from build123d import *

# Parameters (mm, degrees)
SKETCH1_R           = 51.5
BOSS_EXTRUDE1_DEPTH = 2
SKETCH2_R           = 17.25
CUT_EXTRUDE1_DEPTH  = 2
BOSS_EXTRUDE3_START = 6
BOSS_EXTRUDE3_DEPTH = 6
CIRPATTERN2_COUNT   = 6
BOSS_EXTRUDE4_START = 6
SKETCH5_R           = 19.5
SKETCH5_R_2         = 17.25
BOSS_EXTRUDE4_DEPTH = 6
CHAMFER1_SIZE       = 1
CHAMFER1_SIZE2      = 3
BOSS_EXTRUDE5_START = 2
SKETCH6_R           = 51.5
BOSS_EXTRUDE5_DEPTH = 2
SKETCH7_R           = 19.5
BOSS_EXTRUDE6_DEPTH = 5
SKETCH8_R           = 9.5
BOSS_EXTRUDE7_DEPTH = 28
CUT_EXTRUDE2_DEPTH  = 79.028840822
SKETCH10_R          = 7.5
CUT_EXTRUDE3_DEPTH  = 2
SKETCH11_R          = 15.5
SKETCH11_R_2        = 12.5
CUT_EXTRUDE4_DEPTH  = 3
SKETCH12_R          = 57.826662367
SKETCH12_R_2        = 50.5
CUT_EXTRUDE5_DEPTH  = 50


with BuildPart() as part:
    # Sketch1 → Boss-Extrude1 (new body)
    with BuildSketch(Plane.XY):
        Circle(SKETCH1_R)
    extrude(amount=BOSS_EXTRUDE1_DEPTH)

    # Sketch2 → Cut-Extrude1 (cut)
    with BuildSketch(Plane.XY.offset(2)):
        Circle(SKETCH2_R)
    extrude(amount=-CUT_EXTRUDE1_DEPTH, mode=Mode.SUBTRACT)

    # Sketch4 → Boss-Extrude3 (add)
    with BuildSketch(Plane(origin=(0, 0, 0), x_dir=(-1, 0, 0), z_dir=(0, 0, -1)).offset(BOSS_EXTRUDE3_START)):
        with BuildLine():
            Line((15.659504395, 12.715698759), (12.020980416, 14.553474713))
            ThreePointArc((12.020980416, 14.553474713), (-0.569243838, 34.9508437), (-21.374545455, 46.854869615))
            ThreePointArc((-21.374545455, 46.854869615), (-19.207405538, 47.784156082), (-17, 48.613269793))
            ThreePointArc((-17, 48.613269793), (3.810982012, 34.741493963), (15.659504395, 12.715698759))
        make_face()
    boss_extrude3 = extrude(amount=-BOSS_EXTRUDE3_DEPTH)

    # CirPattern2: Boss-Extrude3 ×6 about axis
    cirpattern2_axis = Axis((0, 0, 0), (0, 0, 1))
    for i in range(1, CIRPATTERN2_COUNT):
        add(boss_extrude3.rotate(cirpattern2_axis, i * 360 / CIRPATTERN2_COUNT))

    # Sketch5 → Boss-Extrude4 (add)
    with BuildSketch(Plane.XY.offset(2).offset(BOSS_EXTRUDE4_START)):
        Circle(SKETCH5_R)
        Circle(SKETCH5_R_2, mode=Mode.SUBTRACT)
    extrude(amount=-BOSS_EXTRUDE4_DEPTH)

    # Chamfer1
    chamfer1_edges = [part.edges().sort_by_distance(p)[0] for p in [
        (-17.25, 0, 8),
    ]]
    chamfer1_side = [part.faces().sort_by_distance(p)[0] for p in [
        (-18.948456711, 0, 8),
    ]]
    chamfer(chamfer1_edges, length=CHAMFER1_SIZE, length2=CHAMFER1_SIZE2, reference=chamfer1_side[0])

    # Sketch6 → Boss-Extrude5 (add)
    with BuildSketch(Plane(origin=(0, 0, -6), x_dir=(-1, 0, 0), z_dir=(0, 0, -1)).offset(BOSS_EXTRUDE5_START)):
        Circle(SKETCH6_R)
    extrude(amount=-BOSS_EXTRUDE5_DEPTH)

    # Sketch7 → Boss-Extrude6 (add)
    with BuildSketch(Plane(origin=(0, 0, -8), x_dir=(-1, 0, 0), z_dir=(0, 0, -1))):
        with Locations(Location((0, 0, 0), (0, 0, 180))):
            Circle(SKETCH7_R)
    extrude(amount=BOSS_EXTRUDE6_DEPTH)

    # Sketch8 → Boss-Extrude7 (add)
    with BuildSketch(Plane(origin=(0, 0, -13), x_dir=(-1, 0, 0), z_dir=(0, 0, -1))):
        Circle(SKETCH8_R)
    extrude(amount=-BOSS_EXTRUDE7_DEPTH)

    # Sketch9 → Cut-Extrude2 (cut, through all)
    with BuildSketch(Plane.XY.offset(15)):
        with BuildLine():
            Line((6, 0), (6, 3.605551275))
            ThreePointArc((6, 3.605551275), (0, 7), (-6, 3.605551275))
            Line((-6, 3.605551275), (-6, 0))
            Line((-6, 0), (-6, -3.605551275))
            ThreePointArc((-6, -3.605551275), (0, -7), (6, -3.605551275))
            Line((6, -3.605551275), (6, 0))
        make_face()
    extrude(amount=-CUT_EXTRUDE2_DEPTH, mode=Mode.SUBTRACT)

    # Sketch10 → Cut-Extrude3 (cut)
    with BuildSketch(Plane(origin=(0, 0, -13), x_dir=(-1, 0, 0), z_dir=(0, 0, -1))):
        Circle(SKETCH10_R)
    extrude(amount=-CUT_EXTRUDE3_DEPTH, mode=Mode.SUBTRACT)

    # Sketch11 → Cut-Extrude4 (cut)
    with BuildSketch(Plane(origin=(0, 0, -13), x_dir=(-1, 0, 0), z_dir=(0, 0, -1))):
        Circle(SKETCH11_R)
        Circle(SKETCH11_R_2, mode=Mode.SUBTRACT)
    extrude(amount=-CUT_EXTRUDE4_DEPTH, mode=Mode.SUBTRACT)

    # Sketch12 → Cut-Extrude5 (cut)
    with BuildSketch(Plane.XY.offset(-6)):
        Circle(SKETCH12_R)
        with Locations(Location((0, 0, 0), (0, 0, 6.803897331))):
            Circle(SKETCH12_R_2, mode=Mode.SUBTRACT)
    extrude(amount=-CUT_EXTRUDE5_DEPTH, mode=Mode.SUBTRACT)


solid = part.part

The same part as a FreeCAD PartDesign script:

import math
import FreeCAD as App
import Part
import Sketcher
Q = App.Units.Quantity


def edges_at(feature, points):
    """Names of the edges that pass closest to the given points."""
    edges = feature.Shape.Edges
    near = lambda p: min(range(len(edges)), key=lambda i: edges[i].distToShape(Part.Vertex(*p))[0])
    return sorted({f"Edge{near(p) + 1}" for p in points})

doc = App.newDocument("Part")
body = doc.addObject("PartDesign::Body", "Body")

# Sketch on XY plane
sketch1 = body.newObject("Sketcher::SketchObject", "Sketch")
sketch1.AttachmentSupport = (doc.getObject("XY_Plane"), [""])
sketch1.MapMode = "FlatFace"
sketch1.addGeometry(Part.Circle(App.Vector(0, 0, 0), App.Vector(0, 0, 1), 52), False)
sketch1.addConstraint([
    Sketcher.Constraint("Coincident", 0, 3, -1, 1),
    Sketcher.Constraint("Diameter", 0, Q("103 mm")),
])
pad1 = body.newObject("PartDesign::Pad", "Pad")
pad1.Profile = sketch1
pad1.Length = 2

# Sketch on XY plane
sketch2 = body.newObject("Sketcher::SketchObject", "Sketch001")
sketch2.AttachmentSupport = (doc.getObject("XY_Plane"), [""])
sketch2.MapMode = "FlatFace"
sketch2.AttachmentOffset = App.Placement(App.Vector(0, 0, 2), App.Rotation())
sketch2.addGeometry(Part.Circle(App.Vector(0, 0, 0), App.Vector(0, 0, 1), 17), False)
sketch2.addConstraint([
    Sketcher.Constraint("Coincident", 0, 3, -1, 1),
    Sketcher.Constraint("Diameter", 0, Q("34.5 mm")),
])
pocket1 = body.newObject("PartDesign::Pocket", "Pocket")
pocket1.Profile = sketch2
pocket1.Length = 2

# Sketch on XY plane
sketch3 = body.newObject("Sketcher::SketchObject", "Sketch002")
sketch3.AttachmentSupport = (doc.getObject("XY_Plane"), [""])
sketch3.MapMode = "FlatFace"
sketch3.AttachmentOffset = App.Placement(App.Vector(0, 0, -6), App.Rotation())
sketch3.addGeometry([
    Part.LineSegment(App.Vector(-12, 14.6, 0), App.Vector(-15.7, 12.7, 0)),
    Part.ArcOfCircle(Part.Circle(App.Vector(34.4, 0, 0), App.Vector(0, 0, 1), 51.6), math.radians(110), math.radians(166)),
    Part.ArcOfCircle(Part.Circle(App.Vector(0, 0, 0), App.Vector(0, 0, 1), 51.5), math.radians(65.48), math.radians(70.73)),
    Part.ArcOfCircle(Part.Circle(App.Vector(34.4, 0, 0), App.Vector(0, 0, 1), 48.6), math.radians(106), math.radians(163)),
], False)
sketch3.addConstraint([
    Sketcher.Constraint("Coincident", 0, 2, 1, 2),
    Sketcher.Constraint("Coincident", 1, 1, 2, 2),
    Sketcher.Constraint("Coincident", 2, 1, 3, 1),
    Sketcher.Constraint("Coincident", 3, 2, 0, 1),
    Sketcher.Constraint("Coincident", 2, 3, -1, 1),
    Sketcher.Constraint("Coincident", 3, 3, 1, 3),
    Sketcher.Constraint("PointOnObject", 1, 3, -1),
    Sketcher.Constraint("Radius", 2, Q("51.5 mm")),
    Sketcher.Constraint("DistanceX", -1, 1, 1, 1, Q("17 mm")),
    Sketcher.Constraint("Radius", 1, Q("51.625 mm")),
    Sketcher.Constraint("Radius", 3, Q("48.625 mm")),
    Sketcher.Constraint("DistanceY", -1, 1, 0, 2, Q("12.715699 mm")),
    Sketcher.Constraint("DistanceX", 3, 2, -1, 1, Q("12.02098 mm")),
])
pad2 = body.newObject("PartDesign::Pad", "Pad001")
pad2.Profile = sketch3
pad2.Length = 6
doc.recompute()

polarpattern = body.newObject("PartDesign::PolarPattern", "PolarPattern")
polarpattern.Originals = [pad2]
polarpattern.Axis = (doc.getObject("Z_Axis"), [""])
polarpattern.Angle = 360
polarpattern.Occurrences = 6
body.Tip = polarpattern

# Sketch on XY plane
sketch4 = body.newObject("Sketcher::SketchObject", "Sketch003")
sketch4.AttachmentSupport = (doc.getObject("XY_Plane"), [""])
sketch4.MapMode = "FlatFace"
sketch4.AttachmentOffset = App.Placement(App.Vector(0, 0, 8), App.Rotation())
sketch4.addGeometry([
    Part.Circle(App.Vector(0, 0, 0), App.Vector(0, 0, 1), 20),
    Part.Circle(App.Vector(0, 0, 0), App.Vector(0, 0, 1), 17),
], False)
sketch4.addConstraint([
    Sketcher.Constraint("Coincident", 0, 3, -1, 1),
    Sketcher.Constraint("Coincident", 1, 3, -1, 1),
    Sketcher.Constraint("Diameter", 0, Q("39 mm")),
    Sketcher.Constraint("Diameter", 1, Q("34.5 mm")),
])
pad3 = body.newObject("PartDesign::Pad", "Pad002")
pad3.Profile = sketch4
pad3.Length = 6
pad3.Reversed = True
doc.recompute()

chamfer = body.newObject("PartDesign::Chamfer", "Chamfer")
chamfer.Base = (pad3, edges_at(pad3, [(-17.25, 0, 8)]))
chamfer.ChamferType = "Two distances"
chamfer.Size = 1
chamfer.Size2 = 3

# Sketch on XY plane
sketch5 = body.newObject("Sketcher::SketchObject", "Sketch004")
sketch5.AttachmentSupport = (doc.getObject("XY_Plane"), [""])
sketch5.MapMode = "FlatFace"
sketch5.AttachmentOffset = App.Placement(App.Vector(0, 0, -8), App.Rotation())
sketch5.addGeometry(Part.Circle(App.Vector(0, 0, 0), App.Vector(0, 0, 1), 52), False)
sketch5.addConstraint([
    Sketcher.Constraint("Coincident", 0, 3, -1, 1),
    Sketcher.Constraint("Diameter", 0, Q("103 mm")),
])
pad4 = body.newObject("PartDesign::Pad", "Pad003")
pad4.Profile = sketch5
pad4.Length = 2

# Sketch on XY plane
sketch6 = body.newObject("Sketcher::SketchObject", "Sketch005")
sketch6.AttachmentSupport = (doc.getObject("XY_Plane"), [""])
sketch6.MapMode = "FlatFace"
sketch6.AttachmentOffset = App.Placement(App.Vector(0, 0, -8), App.Rotation())
sketch6.addGeometry(Part.Circle(App.Vector(0, 0, 0), App.Vector(0, 0, 1), 20), False)
sketch6.addConstraint([
    Sketcher.Constraint("Coincident", 0, 3, -1, 1),
    Sketcher.Constraint("Diameter", 0, Q("39 mm")),
])
pad5 = body.newObject("PartDesign::Pad", "Pad004")
pad5.Profile = sketch6
pad5.Length = 5
pad5.Reversed = True

# Sketch on XY plane
sketch7 = body.newObject("Sketcher::SketchObject", "Sketch006")
sketch7.AttachmentSupport = (doc.getObject("XY_Plane"), [""])
sketch7.MapMode = "FlatFace"
sketch7.AttachmentOffset = App.Placement(App.Vector(0, 0, -13), App.Rotation())
sketch7.addGeometry(Part.Circle(App.Vector(0, 0, 0), App.Vector(0, 0, 1), 10), False)
sketch7.addConstraint([
    Sketcher.Constraint("Coincident", 0, 3, -1, 1),
    Sketcher.Constraint("Diameter", 0, Q("19 mm")),
])
pad6 = body.newObject("PartDesign::Pad", "Pad005")
pad6.Profile = sketch7
pad6.Length = 28

# Sketch on XY plane
sketch8 = body.newObject("Sketcher::SketchObject", "Sketch007")
sketch8.AttachmentSupport = (doc.getObject("XY_Plane"), [""])
sketch8.MapMode = "FlatFace"
sketch8.AttachmentOffset = App.Placement(App.Vector(0, 0, 15), App.Rotation())
sketch8.addGeometry([
    Part.ArcOfCircle(Part.Circle(App.Vector(0, 0, 0), App.Vector(0, 0, 1), 7), math.radians(31), math.radians(149)),
    Part.LineSegment(App.Vector(-6, 4, 0), App.Vector(-6, -4, 0)),
    Part.ArcOfCircle(Part.Circle(App.Vector(0, 0, 0), App.Vector(0, 0, 1), 7), math.radians(-149), math.radians(-31)),
    Part.LineSegment(App.Vector(6, -4, 0), App.Vector(6, 4, 0)),
], False)
sketch8.addConstraint([
    Sketcher.Constraint("Coincident", 0, 2, 1, 1),
    Sketcher.Constraint("Coincident", 1, 2, 2, 1),
    Sketcher.Constraint("Coincident", 2, 2, 3, 1),
    Sketcher.Constraint("Coincident", 3, 2, 0, 1),
    Sketcher.Constraint("Vertical", 1),
    Sketcher.Constraint("Vertical", 3),
    Sketcher.Constraint("Coincident", 0, 3, -1, 1),
    Sketcher.Constraint("Coincident", 2, 3, -1, 1),
    Sketcher.Constraint("Equal", 0, 2),
    Sketcher.Constraint("Horizontal", 1, 2, 2, 2),
    Sketcher.Constraint("Radius", 0, Q("7 mm")),
    Sketcher.Constraint("DistanceX", 0, 2, -1, 1, Q("6 mm")),
])
pocket2 = body.newObject("PartDesign::Pocket", "Pocket001")
pocket2.Profile = sketch8
pocket2.Type = "ThroughAll"

# Sketch on XY plane
sketch9 = body.newObject("Sketcher::SketchObject", "Sketch008")
sketch9.AttachmentSupport = (doc.getObject("XY_Plane"), [""])
sketch9.MapMode = "FlatFace"
sketch9.AttachmentOffset = App.Placement(App.Vector(0, 0, -13), App.Rotation())
sketch9.addGeometry(Part.Circle(App.Vector(0, 0, 0), App.Vector(0, 0, 1), 8), False)
sketch9.addConstraint([
    Sketcher.Constraint("Coincident", 0, 3, -1, 1),
    Sketcher.Constraint("Diameter", 0, Q("15 mm")),
])
pocket3 = body.newObject("PartDesign::Pocket", "Pocket002")
pocket3.Profile = sketch9
pocket3.Length = 2
pocket3.Reversed = True

# Sketch on XY plane
sketch10 = body.newObject("Sketcher::SketchObject", "Sketch009")
sketch10.AttachmentSupport = (doc.getObject("XY_Plane"), [""])
sketch10.MapMode = "FlatFace"
sketch10.AttachmentOffset = App.Placement(App.Vector(0, 0, -13), App.Rotation())
sketch10.addGeometry([
    Part.Circle(App.Vector(0, 0, 0), App.Vector(0, 0, 1), 16),
    Part.Circle(App.Vector(0, 0, 0), App.Vector(0, 0, 1), 12),
], False)
sketch10.addConstraint([
    Sketcher.Constraint("Coincident", 0, 3, -1, 1),
    Sketcher.Constraint("Coincident", 1, 3, -1, 1),
    Sketcher.Constraint("Diameter", 0, Q("31 mm")),
    Sketcher.Constraint("Diameter", 1, Q("25 mm")),
])
pocket4 = body.newObject("PartDesign::Pocket", "Pocket003")
pocket4.Profile = sketch10
pocket4.Length = 3
pocket4.Reversed = True

# Sketch on XY plane
sketch11 = body.newObject("Sketcher::SketchObject", "Sketch010")
sketch11.AttachmentSupport = (doc.getObject("XY_Plane"), [""])
sketch11.MapMode = "FlatFace"
sketch11.AttachmentOffset = App.Placement(App.Vector(0, 0, -6), App.Rotation())
sketch11.addGeometry([
    Part.Circle(App.Vector(0, 0, 0), App.Vector(0, 0, 1), 58),
    Part.Circle(App.Vector(0, 0, 0), App.Vector(0, 0, 1), 50),
], False)
sketch11.addConstraint([
    Sketcher.Constraint("Coincident", 0, 3, -1, 1),
    Sketcher.Constraint("Coincident", 1, 3, -1, 1),
    Sketcher.Constraint("Diameter", 1, Q("101 mm")),
    Sketcher.Constraint("Diameter", 0, Q("115.653325 mm")),
])
pocket5 = body.newObject("PartDesign::Pocket", "Pocket004")
pocket5.Profile = sketch11
pocket5.Length = 50

doc.recompute()
